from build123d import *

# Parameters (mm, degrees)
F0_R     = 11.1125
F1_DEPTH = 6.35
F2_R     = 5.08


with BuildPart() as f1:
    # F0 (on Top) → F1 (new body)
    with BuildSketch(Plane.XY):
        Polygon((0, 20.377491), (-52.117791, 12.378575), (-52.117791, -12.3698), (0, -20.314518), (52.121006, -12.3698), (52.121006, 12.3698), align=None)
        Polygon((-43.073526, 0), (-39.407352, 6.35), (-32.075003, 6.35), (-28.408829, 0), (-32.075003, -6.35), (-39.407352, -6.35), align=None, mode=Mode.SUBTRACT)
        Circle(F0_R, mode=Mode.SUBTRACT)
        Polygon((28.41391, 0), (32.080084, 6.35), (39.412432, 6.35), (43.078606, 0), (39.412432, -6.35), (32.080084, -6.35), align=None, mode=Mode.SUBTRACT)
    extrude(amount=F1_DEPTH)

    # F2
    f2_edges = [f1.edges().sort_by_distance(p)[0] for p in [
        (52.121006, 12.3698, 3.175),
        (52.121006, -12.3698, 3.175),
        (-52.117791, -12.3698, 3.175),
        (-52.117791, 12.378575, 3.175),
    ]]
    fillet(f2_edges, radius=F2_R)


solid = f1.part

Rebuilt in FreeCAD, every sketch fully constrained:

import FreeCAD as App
import Part
import Sketcher
Q = App.Units.Quantity


def edges_at(feature, points):
    """Names of the edges that pass closest to the given points."""
    edges = feature.Shape.Edges
    near = lambda p: min(range(len(edges)), key=lambda i: edges[i].distToShape(Part.Vertex(*p))[0])
    return sorted({f"Edge{near(p) + 1}" for p in points})

doc = App.newDocument("Part")
params = doc.addObject("Spreadsheet::Sheet", "Params")
for row, (alias, value) in enumerate([
    ("sketch1_diameter", "0.875 in"),
    ("sketch1_height", "0.974 in"),
    ("pad1_length", "0.25 in"),
    ("fillet_radius", "0.2 in"),
], start=1):
    params.set(f"A{row}", alias)
    params.set(f"B{row}", "=" + value)
    params.setAlias(f"B{row}", alias)

body = doc.addObject("PartDesign::Body", "Body")

sketch1 = body.newObject("Sketcher::SketchObject", "Sketch")
sketch1.AttachmentSupport = (doc.getObject("XY_Plane"), [""])
sketch1.MapMode = "FlatFace"
sketch1.addGeometry(Part.LineSegment(App.Vector(0, 20, 0), App.Vector(-52, 12, 0)), False)
sketch1.addGeometry(Part.LineSegment(App.Vector(-52, 12, 0), App.Vector(-52, -12, 0)), False)
sketch1.addGeometry(Part.LineSegment(App.Vector(-52, -12, 0), App.Vector(0, -20, 0)), False)
sketch1.addGeometry(Part.LineSegment(App.Vector(0, -20, 0), App.Vector(52, -12, 0)), False)
sketch1.addGeometry(Part.LineSegment(App.Vector(52, -12, 0), App.Vector(52, 12, 0)), False)
sketch1.addGeometry(Part.LineSegment(App.Vector(52, 12, 0), App.Vector(0, 20, 0)), False)
sketch1.addGeometry(Part.LineSegment(App.Vector(-39, -6, 0), App.Vector(-43, 0, 0)), False)
sketch1.addGeometry(Part.LineSegment(App.Vector(-43, 0, 0), App.Vector(-39, 6, 0)), False)
sketch1.addGeometry(Part.LineSegment(App.Vector(-39, 6, 0), App.Vector(-32, 6, 0)), False)
sketch1.addGeometry(Part.LineSegment(App.Vector(-32, 6, 0), App.Vector(-28, 0, 0)), False)
sketch1.addGeometry(Part.LineSegment(App.Vector(-28, 0, 0), App.Vector(-32, -6, 0)), False)
sketch1.addGeometry(Part.LineSegment(App.Vector(-32, -6, 0), App.Vector(-39, -6, 0)), False)
sketch1.addGeometry(Part.Circle(App.Vector(0, 0, 0), App.Vector(0, 0, 1), 11), False)
sketch1.addGeometry(Part.LineSegment(App.Vector(32, -6, 0), App.Vector(28, 0, 0)), False)
sketch1.addGeometry(Part.LineSegment(App.Vector(28, 0, 0), App.Vector(32, 6, 0)), False)
sketch1.addGeometry(Part.LineSegment(App.Vector(32, 6, 0), App.Vector(39, 6, 0)), False)
sketch1.addGeometry(Part.LineSegment(App.Vector(39, 6, 0), App.Vector(43, 0, 0)), False)
sketch1.addGeometry(Part.LineSegment(App.Vector(43, 0, 0), App.Vector(39, -6, 0)), False)
sketch1.addGeometry(Part.LineSegment(App.Vector(39, -6, 0), App.Vector(32, -6, 0)), False)
sketch1.addConstraint(Sketcher.Constraint("Coincident", 0, 2, 1, 1))
sketch1.addConstraint(Sketcher.Constraint("Coincident", 1, 2, 2, 1))
sketch1.addConstraint(Sketcher.Constraint("Coincident", 2, 2, 3, 1))
sketch1.addConstraint(Sketcher.Constraint("Coincident", 3, 2, 4, 1))
sketch1.addConstraint(Sketcher.Constraint("Coincident", 4, 2, 5, 1))
sketch1.addConstraint(Sketcher.Constraint("Coincident", 5, 2, 0, 1))
sketch1.addConstraint(Sketcher.Constraint("Coincident", 6, 2, 7, 1))
sketch1.addConstraint(Sketcher.Constraint("Coincident", 7, 2, 8, 1))
sketch1.addConstraint(Sketcher.Constraint("Coincident", 8, 2, 9, 1))
sketch1.addConstraint(Sketcher.Constraint("Coincident", 9, 2, 10, 1))
sketch1.addConstraint(Sketcher.Constraint("Coincident", 10, 2, 11, 1))
sketch1.addConstraint(Sketcher.Constraint("Coincident", 11, 2, 6, 1))
sketch1.addConstraint(Sketcher.Constraint("Coincident", 13, 2, 14, 1))
sketch1.addConstraint(Sketcher.Constraint("Coincident", 14, 2, 15, 1))
sketch1.addConstraint(Sketcher.Constraint("Coincident", 15, 2, 16, 1))
sketch1.addConstraint(Sketcher.Constraint("Coincident", 16, 2, 17, 1))
sketch1.addConstraint(Sketcher.Constraint("Coincident", 17, 2, 18, 1))
sketch1.addConstraint(Sketcher.Constraint("Coincident", 18, 2, 13, 1))
sketch1.addConstraint(Sketcher.Constraint("Vertical", 1))
sketch1.addConstraint(Sketcher.Constraint("Vertical", 4))
sketch1.addConstraint(Sketcher.Constraint("Horizontal", 8))
sketch1.addConstraint(Sketcher.Constraint("Horizontal", 11))
sketch1.addConstraint(Sketcher.Constraint("Horizontal", 15))
sketch1.addConstraint(Sketcher.Constraint("Horizontal", 18))
sketch1.addConstraint(Sketcher.Constraint("Coincident", 12, 3, -1, 1))
sketch1.addConstraint(Sketcher.Constraint("Symmetric", 8, 2, 10, 2, -1))
sketch1.addConstraint(Sketcher.Constraint("Symmetric", 15, 2, 17, 2, -1))
sketch1.addConstraint(Sketcher.Constraint("PointOnObject", 2, 2, -2))
sketch1.addConstraint(Sketcher.Constraint("PointOnObject", 5, 2, -2))
sketch1.addConstraint(Sketcher.Constraint("PointOnObject", 6, 2, -1))
sketch1.addConstraint(Sketcher.Constraint("PointOnObject", 9, 2, -1))
sketch1.addConstraint(Sketcher.Constraint("PointOnObject", 13, 2, -1))
sketch1.addConstraint(Sketcher.Constraint("PointOnObject", 16, 2, -1))
sketch1.addConstraint(Sketcher.Constraint("Parallel", 6, 9))
sketch1.addConstraint(Sketcher.Constraint("Parallel", 7, 10))
sketch1.addConstraint(Sketcher.Constraint("Parallel", 9, 13))
sketch1.addConstraint(Sketcher.Constraint("Parallel", 10, 14))
sketch1.addConstraint(Sketcher.Constraint("Parallel", 13, 16))
sketch1.addConstraint(Sketcher.Constraint("Horizontal", 1, 2, 3, 2))
sketch1.addConstraint(Sketcher.Constraint("Horizontal", 8, 2, 14, 2))
sketch1.addConstraint(Sketcher.Constraint("Equal", 11, 15))
sketch1.addConstraint(Sketcher.Constraint("Diameter", 12, Q("0.875 in")))
sketch1.addConstraint(Sketcher.Constraint("Angle", 6, Q("119.999999 deg")))
sketch1.addConstraint(Sketcher.Constraint("DistanceY", 10, 2, 8, 2, Q("0.5 in")))
sketch1.addConstraint(Sketcher.Constraint("DistanceY", 4, 1, 4, 2, Q("0.974 in")))
sketch1.addConstraint(Sketcher.Constraint("DistanceY", 1, 2, -1, 1, Q("0.487 in")))
sketch1.addConstraint(Sketcher.Constraint("DistanceX", 16, 2, 3, 2, Q("0.356 in")))
sketch1.addConstraint(Sketcher.Constraint("DistanceX", 8, 1, 8, 2, 7.332349))
sketch1.addConstraint(Sketcher.Constraint("Distance", 2, 52.719851))
sketch1.addConstraint(Sketcher.Constraint("Distance", 3, 52.723029))
sketch1.addConstraint(Sketcher.Constraint("DistanceY", 1, 2, 1, 1, 24.748375))
sketch1.addConstraint(Sketcher.Constraint("DistanceX", 0, 2, -1, 1, 52.117791))
sketch1.addConstraint(Sketcher.Constraint("DistanceY", -1, 1, 5, 2, 20.377491))
sketch1.addConstraint(Sketcher.Constraint("DistanceX", 9, 2, -1, 1, 28.408829))
sketch1.setExpression("Constraints[41]", "Params.sketch1_diameter")
sketch1.setExpression("Constraints[44]", "Params.sketch1_height")
pad1 = body.newObject("PartDesign::Pad", "Pad")
pad1.Profile = sketch1
pad1.setExpression("Length", "Params.pad1_length")
doc.recompute()

fillet = body.newObject("PartDesign::Fillet", "Fillet")
fillet.Base = (pad1, edges_at(pad1, [
    (52.121, 12.37, 3.175),
    (52.121, -12.37, 3.175),
    (-52.118, -12.37, 3.175),
    (-52.118, 12.379, 3.175),
]))
fillet.setExpression("Radius", "Params.fillet_radius")

doc.recompute()
